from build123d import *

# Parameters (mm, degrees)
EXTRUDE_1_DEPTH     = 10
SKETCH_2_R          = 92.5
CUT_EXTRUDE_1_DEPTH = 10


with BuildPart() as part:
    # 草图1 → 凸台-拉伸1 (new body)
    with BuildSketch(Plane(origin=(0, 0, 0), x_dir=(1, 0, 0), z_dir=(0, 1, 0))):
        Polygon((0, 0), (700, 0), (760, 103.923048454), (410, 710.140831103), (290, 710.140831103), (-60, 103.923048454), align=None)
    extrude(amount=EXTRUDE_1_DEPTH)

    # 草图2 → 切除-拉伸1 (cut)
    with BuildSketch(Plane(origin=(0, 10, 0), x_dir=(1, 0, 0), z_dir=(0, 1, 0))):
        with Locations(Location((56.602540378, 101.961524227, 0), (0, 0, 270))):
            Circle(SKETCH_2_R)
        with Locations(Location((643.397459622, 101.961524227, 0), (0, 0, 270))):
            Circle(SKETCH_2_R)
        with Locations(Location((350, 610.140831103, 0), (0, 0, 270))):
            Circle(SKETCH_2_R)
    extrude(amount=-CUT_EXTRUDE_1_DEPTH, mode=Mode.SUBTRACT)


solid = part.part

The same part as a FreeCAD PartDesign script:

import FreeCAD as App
import Part
import Sketcher

V = App.Vector
Q = App.Units.Quantity


def add_polygon(sketch, points):
    """Adds a closed chain of lines whose ends are joined by coincident constraints."""
    first, n = sketch.GeometryCount, len(points)
    for a, b in zip(points, points[1:] + points[:1]):
        sketch.addGeometry(Part.LineSegment(App.Vector(*a, 0), App.Vector(*b, 0)), False)
    for i in range(n):
        sketch.addConstraint(Sketcher.Constraint("Coincident", first + i, 2, first + (i + 1) % n, 1))

doc = App.newDocument("Part")
body = doc.addObject("PartDesign::Body", "Body")

# Sketch on XZ plane
sketch1 = body.newObject("Sketcher::SketchObject", "Sketch")
sketch1.AttachmentSupport = (doc.getObject("XZ_Plane"), [""])
sketch1.MapMode = "FlatFace"
add_polygon(sketch1, [(0, 0), (700, 0), (760, -104), (410, -710), (290, -710), (-60, -104)])  # lines 0-5
sketch1.addConstraint(Sketcher.Constraint("Horizontal", 0))
sketch1.addConstraint(Sketcher.Constraint("Horizontal", 3))
sketch1.addConstraint(Sketcher.Constraint("Coincident", 5, 2, -1, 1))
sketch1.addConstraint(Sketcher.Constraint("Parallel", 1, 4))
sketch1.addConstraint(Sketcher.Constraint("Parallel", 2, 5))
sketch1.addConstraint(Sketcher.Constraint("Horizontal", 1, 2, 4, 2))
sketch1.addConstraint(Sketcher.Constraint("Equal", 2, 4))
sketch1.addConstraint(Sketcher.Constraint("DistanceX", 0, 1, 0, 2, 700.0))
sketch1.addConstraint(Sketcher.Constraint("DistanceX", 3, 2, 3, 1, 120.0))
sketch1.addConstraint(Sketcher.Constraint("Angle", 1, Q("-60 deg")))
sketch1.addConstraint(Sketcher.Constraint("Distance", 1, 120.0))
pad1 = body.newObject("PartDesign::Pad", "Pad")
pad1.Profile = sketch1
pad1.Length = 10
pad1.Reversed = True

# Sketch on XZ plane
sketch2 = body.newObject("Sketcher::SketchObject", "Sketch001")
sketch2.AttachmentSupport = (doc.getObject("XZ_Plane"), [""])
sketch2.MapMode = "FlatFace"
sketch2.AttachmentOffset = App.Placement(V(0, 0, -10), App.Rotation())
sketch2.addGeometry(Part.Circle(V(57, -102, 0), V(0, 0, 1), 92), False)
sketch2.addGeometry(Part.Circle(V(643, -102, 0), V(0, 0, 1), 92), False)
sketch2.addGeometry(Part.Circle(V(350, -610, 0), V(0, 0, 1), 92), False)
sketch2.addConstraint(Sketcher.Constraint("Equal", 0, 1))
sketch2.addConstraint(Sketcher.Constraint("Equal", 1, 2))
sketch2.addConstraint(Sketcher.Constraint("Horizontal", 0, 3, 1, 3))
sketch2.addConstraint(Sketcher.Constraint("Diameter", 0, 185.0))
sketch2.addConstraint(Sketcher.Constraint("DistanceX", -1, 1, 2, 3, 350.0))
sketch2.addConstraint(Sketcher.Constraint("DistanceX", -1, 1, 0, 3, 56.60254))
sketch2.addConstraint(Sketcher.Constraint("DistanceX", -1, 1, 1, 3, 643.39746))
sketch2.addConstraint(Sketcher.Constraint("DistanceY", 2, 3, -1, 1, 610.140831))
sketch2.addConstraint(Sketcher.Constraint("DistanceY", 0, 3, -1, 1, 101.961524))
pocket1 = body.newObject("PartDesign::Pocket", "Pocket")
pocket1.Profile = sketch2
pocket1.Length = 10
pocket1.Reversed = True

doc.recompute()
